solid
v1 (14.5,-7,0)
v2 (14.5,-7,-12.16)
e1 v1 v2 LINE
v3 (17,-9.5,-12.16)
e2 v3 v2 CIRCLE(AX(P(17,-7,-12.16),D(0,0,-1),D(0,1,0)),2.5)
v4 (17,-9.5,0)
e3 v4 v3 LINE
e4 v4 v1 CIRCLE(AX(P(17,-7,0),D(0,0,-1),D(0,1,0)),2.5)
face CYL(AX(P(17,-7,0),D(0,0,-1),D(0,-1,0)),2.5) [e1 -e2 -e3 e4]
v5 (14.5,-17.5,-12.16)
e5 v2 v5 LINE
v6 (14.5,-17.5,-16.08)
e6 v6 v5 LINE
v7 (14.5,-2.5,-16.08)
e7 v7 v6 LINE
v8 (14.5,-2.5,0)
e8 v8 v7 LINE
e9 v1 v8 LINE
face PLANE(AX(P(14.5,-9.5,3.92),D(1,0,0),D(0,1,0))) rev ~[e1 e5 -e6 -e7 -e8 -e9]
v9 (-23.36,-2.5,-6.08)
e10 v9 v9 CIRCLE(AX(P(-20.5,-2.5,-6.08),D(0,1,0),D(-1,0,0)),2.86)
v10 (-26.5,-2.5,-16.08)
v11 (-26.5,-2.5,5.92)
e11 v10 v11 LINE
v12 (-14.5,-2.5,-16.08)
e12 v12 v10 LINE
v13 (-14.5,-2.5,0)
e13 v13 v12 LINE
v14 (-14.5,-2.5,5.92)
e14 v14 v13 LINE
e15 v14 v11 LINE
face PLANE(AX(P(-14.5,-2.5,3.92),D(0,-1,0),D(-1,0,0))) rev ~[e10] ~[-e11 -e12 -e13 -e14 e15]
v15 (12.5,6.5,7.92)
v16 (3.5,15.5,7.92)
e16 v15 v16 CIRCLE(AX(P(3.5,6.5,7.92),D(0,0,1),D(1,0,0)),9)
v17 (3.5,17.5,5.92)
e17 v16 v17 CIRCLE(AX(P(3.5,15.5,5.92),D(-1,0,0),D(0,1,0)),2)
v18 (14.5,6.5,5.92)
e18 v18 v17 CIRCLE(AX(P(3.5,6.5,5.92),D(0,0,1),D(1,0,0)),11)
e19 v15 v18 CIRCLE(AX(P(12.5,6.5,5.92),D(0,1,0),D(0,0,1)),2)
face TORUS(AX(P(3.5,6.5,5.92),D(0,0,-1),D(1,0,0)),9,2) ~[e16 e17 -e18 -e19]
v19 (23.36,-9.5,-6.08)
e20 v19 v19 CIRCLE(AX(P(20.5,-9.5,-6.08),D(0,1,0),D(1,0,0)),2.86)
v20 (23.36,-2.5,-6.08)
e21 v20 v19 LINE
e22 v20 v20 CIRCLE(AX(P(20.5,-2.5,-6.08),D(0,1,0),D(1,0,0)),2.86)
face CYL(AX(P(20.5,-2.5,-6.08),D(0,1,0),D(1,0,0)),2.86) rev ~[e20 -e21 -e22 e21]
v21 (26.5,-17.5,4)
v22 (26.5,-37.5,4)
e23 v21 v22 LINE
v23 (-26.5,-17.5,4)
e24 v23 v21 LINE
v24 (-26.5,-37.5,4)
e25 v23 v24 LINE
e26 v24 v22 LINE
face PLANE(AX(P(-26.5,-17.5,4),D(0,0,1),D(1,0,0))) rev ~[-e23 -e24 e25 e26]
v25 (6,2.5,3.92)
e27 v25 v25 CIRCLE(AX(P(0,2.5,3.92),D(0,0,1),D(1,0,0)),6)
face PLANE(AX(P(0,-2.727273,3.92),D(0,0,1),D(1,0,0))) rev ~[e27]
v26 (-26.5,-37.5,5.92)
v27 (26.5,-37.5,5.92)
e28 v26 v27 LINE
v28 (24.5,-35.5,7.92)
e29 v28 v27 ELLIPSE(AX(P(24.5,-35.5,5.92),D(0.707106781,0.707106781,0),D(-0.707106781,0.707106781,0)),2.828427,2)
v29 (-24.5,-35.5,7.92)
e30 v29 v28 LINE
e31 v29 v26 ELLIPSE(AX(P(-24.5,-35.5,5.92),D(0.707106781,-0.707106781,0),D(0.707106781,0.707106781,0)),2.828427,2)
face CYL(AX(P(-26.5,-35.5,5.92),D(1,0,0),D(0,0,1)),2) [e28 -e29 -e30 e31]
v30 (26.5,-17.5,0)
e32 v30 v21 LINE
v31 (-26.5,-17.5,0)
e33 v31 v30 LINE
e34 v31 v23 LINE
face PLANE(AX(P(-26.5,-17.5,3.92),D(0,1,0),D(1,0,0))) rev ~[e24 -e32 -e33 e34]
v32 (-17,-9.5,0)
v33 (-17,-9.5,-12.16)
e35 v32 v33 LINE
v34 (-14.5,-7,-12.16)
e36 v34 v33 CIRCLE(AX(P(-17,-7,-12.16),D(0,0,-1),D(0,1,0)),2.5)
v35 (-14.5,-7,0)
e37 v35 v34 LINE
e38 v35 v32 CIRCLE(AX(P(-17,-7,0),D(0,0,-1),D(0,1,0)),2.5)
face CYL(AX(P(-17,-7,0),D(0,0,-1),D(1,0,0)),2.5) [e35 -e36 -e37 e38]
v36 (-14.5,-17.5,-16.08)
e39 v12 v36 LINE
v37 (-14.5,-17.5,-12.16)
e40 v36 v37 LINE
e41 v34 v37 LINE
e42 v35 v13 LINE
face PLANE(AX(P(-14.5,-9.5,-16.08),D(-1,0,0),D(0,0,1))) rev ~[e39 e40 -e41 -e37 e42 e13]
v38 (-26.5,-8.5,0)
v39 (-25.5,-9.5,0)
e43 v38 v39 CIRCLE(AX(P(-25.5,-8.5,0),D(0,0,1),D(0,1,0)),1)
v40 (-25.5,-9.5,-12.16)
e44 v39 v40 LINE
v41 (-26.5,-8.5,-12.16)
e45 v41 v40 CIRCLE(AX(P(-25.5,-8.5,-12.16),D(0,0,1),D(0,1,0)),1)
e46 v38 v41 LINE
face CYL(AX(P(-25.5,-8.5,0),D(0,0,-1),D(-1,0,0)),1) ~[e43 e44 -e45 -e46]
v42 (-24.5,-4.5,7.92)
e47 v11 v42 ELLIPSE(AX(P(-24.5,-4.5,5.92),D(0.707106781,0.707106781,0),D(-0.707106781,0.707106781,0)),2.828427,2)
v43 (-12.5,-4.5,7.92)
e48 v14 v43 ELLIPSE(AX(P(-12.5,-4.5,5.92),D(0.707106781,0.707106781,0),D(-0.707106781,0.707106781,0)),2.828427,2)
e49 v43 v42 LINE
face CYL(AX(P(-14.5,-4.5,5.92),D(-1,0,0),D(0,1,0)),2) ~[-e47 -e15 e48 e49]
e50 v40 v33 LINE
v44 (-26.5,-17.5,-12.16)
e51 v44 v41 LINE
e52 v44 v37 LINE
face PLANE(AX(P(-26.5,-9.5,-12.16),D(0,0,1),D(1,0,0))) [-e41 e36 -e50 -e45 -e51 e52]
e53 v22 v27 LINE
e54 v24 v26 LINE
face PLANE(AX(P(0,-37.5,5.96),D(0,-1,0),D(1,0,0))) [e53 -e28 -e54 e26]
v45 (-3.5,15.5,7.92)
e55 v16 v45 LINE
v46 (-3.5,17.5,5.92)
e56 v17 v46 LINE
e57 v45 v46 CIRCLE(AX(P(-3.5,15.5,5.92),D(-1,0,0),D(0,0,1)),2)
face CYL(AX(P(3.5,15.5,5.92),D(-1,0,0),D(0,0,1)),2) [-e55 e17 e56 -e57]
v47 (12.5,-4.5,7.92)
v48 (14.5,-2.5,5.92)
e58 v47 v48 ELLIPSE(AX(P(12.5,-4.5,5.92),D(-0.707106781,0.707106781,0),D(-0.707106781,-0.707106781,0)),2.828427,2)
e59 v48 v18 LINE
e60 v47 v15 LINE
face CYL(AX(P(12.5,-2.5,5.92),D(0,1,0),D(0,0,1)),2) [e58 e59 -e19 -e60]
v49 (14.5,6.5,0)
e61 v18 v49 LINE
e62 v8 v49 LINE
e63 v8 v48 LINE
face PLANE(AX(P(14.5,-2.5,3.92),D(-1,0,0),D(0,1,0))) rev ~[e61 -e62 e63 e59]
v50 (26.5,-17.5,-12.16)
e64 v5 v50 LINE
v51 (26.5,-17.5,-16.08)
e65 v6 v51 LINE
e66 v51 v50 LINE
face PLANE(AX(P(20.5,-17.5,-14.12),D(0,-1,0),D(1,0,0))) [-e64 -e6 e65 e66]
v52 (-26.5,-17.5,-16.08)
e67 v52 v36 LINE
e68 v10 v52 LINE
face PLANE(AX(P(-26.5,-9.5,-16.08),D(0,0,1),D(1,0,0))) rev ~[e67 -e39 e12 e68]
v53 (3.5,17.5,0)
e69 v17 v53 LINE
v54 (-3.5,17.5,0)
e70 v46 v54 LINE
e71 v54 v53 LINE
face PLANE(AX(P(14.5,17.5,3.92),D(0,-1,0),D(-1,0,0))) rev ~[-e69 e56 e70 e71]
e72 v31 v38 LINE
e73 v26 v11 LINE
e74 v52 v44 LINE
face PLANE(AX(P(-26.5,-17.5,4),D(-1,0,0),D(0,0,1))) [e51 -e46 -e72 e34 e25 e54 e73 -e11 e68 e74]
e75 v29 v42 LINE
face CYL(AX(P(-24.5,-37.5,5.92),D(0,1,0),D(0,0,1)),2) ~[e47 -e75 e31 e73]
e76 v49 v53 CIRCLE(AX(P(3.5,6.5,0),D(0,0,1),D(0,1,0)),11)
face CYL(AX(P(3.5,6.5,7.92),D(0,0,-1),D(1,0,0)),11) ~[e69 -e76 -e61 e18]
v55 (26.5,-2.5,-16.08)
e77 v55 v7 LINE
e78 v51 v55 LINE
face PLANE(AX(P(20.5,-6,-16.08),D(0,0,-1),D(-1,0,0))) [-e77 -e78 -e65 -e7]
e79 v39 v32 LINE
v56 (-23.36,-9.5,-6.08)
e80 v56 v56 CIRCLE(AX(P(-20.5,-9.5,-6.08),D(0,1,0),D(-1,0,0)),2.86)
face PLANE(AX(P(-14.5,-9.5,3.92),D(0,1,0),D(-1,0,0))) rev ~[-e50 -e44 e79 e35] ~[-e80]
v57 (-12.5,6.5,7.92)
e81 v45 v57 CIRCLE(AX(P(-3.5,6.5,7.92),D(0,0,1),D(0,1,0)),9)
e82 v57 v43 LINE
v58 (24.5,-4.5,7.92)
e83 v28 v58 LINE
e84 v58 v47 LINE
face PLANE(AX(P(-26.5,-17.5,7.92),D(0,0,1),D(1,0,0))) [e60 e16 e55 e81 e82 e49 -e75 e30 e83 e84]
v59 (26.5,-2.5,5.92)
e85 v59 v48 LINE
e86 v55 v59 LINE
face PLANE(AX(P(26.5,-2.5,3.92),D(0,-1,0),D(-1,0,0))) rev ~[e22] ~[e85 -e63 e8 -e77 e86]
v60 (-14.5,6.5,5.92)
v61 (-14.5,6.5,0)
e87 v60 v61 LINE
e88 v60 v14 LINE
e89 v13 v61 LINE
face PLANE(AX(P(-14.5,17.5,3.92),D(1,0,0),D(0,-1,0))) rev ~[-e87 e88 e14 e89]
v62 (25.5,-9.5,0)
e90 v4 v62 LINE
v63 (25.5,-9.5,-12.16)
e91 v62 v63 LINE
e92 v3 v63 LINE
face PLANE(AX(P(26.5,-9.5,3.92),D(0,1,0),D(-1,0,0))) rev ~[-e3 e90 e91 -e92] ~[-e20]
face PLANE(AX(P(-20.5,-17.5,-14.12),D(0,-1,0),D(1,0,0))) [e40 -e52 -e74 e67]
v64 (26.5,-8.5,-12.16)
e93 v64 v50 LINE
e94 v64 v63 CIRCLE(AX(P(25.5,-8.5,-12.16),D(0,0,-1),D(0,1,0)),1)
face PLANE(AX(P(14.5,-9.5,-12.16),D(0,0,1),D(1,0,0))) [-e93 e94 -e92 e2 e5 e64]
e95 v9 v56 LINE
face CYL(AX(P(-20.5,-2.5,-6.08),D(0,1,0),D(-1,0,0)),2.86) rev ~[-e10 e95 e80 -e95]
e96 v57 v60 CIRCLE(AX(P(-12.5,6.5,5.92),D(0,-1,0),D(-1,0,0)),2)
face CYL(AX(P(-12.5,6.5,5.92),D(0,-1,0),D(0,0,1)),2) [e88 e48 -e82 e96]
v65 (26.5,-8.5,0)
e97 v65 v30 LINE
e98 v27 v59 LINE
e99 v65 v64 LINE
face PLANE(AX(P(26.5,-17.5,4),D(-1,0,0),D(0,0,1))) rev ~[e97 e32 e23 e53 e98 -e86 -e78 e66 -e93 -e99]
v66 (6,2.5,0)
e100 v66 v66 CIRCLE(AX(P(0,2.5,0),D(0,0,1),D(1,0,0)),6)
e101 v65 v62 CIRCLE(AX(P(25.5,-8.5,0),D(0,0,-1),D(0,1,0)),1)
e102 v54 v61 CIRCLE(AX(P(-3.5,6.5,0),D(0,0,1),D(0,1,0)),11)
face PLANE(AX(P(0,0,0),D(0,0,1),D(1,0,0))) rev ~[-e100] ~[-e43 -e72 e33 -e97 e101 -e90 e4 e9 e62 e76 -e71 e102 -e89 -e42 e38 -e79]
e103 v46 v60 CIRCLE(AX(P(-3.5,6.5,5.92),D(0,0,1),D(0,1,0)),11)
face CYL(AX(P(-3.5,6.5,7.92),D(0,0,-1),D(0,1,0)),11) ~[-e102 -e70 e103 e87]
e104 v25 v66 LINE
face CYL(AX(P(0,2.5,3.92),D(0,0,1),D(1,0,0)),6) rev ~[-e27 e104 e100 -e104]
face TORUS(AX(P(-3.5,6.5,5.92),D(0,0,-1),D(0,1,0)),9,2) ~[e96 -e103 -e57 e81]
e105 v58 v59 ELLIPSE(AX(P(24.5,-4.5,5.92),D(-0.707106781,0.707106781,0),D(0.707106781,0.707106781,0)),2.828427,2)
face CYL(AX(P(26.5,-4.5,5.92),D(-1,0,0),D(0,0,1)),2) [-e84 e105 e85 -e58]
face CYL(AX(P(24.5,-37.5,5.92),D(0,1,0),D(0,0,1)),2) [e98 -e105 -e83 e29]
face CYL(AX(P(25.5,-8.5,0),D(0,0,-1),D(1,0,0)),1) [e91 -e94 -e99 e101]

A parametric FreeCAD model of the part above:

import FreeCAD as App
import Part
import Sketcher
from FreeCAD import Vector


def edges_at(feature, points):
    """Names of the edges that pass closest to the given points."""
    edges = feature.Shape.Edges
    near = lambda p: min(range(len(edges)), key=lambda i: edges[i].distToShape(Part.Vertex(*p))[0])
    return sorted({f"Edge{near(p) + 1}" for p in points})


def add_polygon(sketch, points):
    """Adds a closed chain of lines whose ends are joined by coincident constraints."""
    first, n = sketch.GeometryCount, len(points)
    for a, b in zip(points, points[1:] + points[:1]):
        sketch.addGeometry(Part.LineSegment(App.Vector(*a, 0), App.Vector(*b, 0)), False)
    for i in range(n):
        sketch.addConstraint(Sketcher.Constraint("Coincident", first + i, 2, first + (i + 1) % n, 1))

doc = App.newDocument("Part")
params = doc.addObject("Spreadsheet::Sheet", "Params")
for row, (alias, value) in enumerate([
    ("sketch1_width", "53 mm"),
    ("sketch1_height", "35 mm"),
    ("pad1_length", "3.92 mm"),
    ("sketch2_width", "12 mm"),
    ("sketch2_height", "27 mm"),
    ("pocket1_length", "4 mm"),
    ("sketch3_width", "12 mm"),
    ("sketch3_height", "7 mm"),
    ("pad2_length", "16.08 mm"),
    ("pad2_length2", "3.92 mm"),
    ("sketch4_width", "12 mm"),
    ("sketch4_height", "3.92 mm"),
    ("pad3_length", "8 mm"),
    ("sketch5_diameter", "5.72 mm"),
    ("sketch6_diameter", "12 mm"),
    ("pocket3_length", "4 mm"),
    ("sketch7_width", "12 mm"),
    ("sketch7_width2", "53 mm"),
    ("sketch7_height", "15 mm"),
    ("sketch7_height2", "20 mm"),
    ("pad4_length", "4 mm"),
    ("sketch8_width", "53 mm"),
    ("sketch8_height", "3.92 mm"),
    ("pad5_length", "20 mm"),
    ("fillet_radius", "2.5 mm"),
    ("fillet2_radius", "11 mm"),
    ("fillet3_radius", "1 mm"),
    ("fillet4_radius", "2 mm"),
], start=1):
    params.set(f"A{row}", alias)
    params.set(f"B{row}", "=" + value)
    params.setAlias(f"B{row}", alias)

body = doc.addObject("PartDesign::Body", "Body")

# Sketch on XY plane
sketch1 = doc.addObject("Sketcher::SketchObject", "Sketch")
body.addObject(sketch1)
sketch1.AttachmentSupport = (doc.XY_Plane, [""])
sketch1.MapMode = "FlatFace"
add_polygon(sketch1, [(-26, 18), (-26, -18), (26, -18), (26, 18)])  # lines 0-3
sketch1.addConstraint([
    Sketcher.Constraint("Vertical", 0),
    Sketcher.Constraint("Horizontal", 1),
    Sketcher.Constraint("Vertical", 2),
    Sketcher.Constraint("Horizontal", 3),
    Sketcher.Constraint("Symmetric", 0, 2, 2, 2, -1, 1),
    Sketcher.Constraint("DistanceX", 1, 1, 1, 2, 53.0),
    Sketcher.Constraint("DistanceY", 0, 2, 0, 1, 35.0),
])
sketch1.setExpression("Constraints[9]", "Params.sketch1_width")
sketch1.setExpression("Constraints[10]", "Params.sketch1_height")
pad1 = doc.addObject("PartDesign::Pad", "Pad")
body.addObject(pad1)
pad1.Profile = sketch1
pad1.setExpression("Length", "Params.pad1_length")

# Sketch on XY plane
sketch2 = doc.addObject("Sketcher::SketchObject", "Sketch001")
body.addObject(sketch2)
sketch2.AttachmentSupport = (doc.XY_Plane, [""])
sketch2.MapMode = "FlatFace"
sketch2.AttachmentOffset = App.Placement(Vector(0, 0, 3.92), App.Rotation())
add_polygon(sketch2, [(-26, 18), (-26, -10), (-14, -10), (-14, 18)])  # lines 0-3
add_polygon(sketch2, [(14, 18), (14, -10), (26, -10), (26, 18)])  # lines 4-7
sketch2.addConstraint([
    Sketcher.Constraint("Vertical", 0),
    Sketcher.Constraint("Horizontal", 1),
    Sketcher.Constraint("Vertical", 2),
    Sketcher.Constraint("Horizontal", 3),
    Sketcher.Constraint("Vertical", 4),
    Sketcher.Constraint("Horizontal", 5),
    Sketcher.Constraint("Vertical", 6),
    Sketcher.Constraint("Horizontal", 7),
    Sketcher.Constraint("Symmetric", 1, 2, 4, 2, -2),
    Sketcher.Constraint("Symmetric", 3, 2, 6, 2, -2),
    Sketcher.Constraint("DistanceX", 1, 1, 1, 2, 12.0),
    Sketcher.Constraint("DistanceY", 0, 2, 0, 1, 27.0),
    Sketcher.Constraint("DistanceX", 1, 2, 4, 2, 29.0),
    Sketcher.Constraint("DistanceY", 0, 2, -1, 1, 9.5),
])
sketch2.setExpression("Constraints[18]", "Params.sketch2_width")
sketch2.setExpression("Constraints[19]", "Params.sketch2_height")
pocket1 = doc.addObject("PartDesign::Pocket", "Pocket")
body.addObject(pocket1)
pocket1.Profile = sketch2
pocket1.setExpression("Length", "Params.pocket1_length")

# Sketch on XY plane
sketch3 = doc.addObject("Sketcher::SketchObject", "Sketch002")
body.addObject(sketch3)
sketch3.AttachmentSupport = (doc.XY_Plane, [""])
sketch3.MapMode = "FlatFace"
add_polygon(sketch3, [(26, -2), (26, -10), (14, -10), (14, -2)])  # lines 0-3
add_polygon(sketch3, [(-14, -2), (-14, -10), (-26, -10), (-26, -2)])  # lines 4-7
sketch3.addConstraint([
    Sketcher.Constraint("Vertical", 0),
    Sketcher.Constraint("Horizontal", 1),
    Sketcher.Constraint("Vertical", 2),
    Sketcher.Constraint("Horizontal", 3),
    Sketcher.Constraint("Vertical", 4),
    Sketcher.Constraint("Horizontal", 5),
    Sketcher.Constraint("Vertical", 6),
    Sketcher.Constraint("Horizontal", 7),
    Sketcher.Constraint("Symmetric", 1, 2, 4, 2, -2),
    Sketcher.Constraint("Symmetric", 3, 2, 6, 2, -2),
    Sketcher.Constraint("DistanceX", 1, 2, 1, 1, 12.0),
    Sketcher.Constraint("DistanceY", 0, 2, 0, 1, 7.0),
    Sketcher.Constraint("DistanceX", 4, 2, 1, 2, 29.0),
    Sketcher.Constraint("DistanceY", 0, 2, -1, 1, 9.5),
])
sketch3.setExpression("Constraints[18]", "Params.sketch3_width")
sketch3.setExpression("Constraints[19]", "Params.sketch3_height")
pad2 = doc.addObject("PartDesign::Pad", "Pad001")
body.addObject(pad2)
pad2.Profile = sketch3
pad2.Type = "TwoLengths"
pad2.setExpression("Length", "Params.pad2_length")
pad2.setExpression("Length2", "Params.pad2_length2")
pad2.Reversed = True

# Sketch on XZ plane
sketch4 = doc.addObject("Sketcher::SketchObject", "Sketch003")
body.addObject(sketch4)
sketch4.AttachmentSupport = (doc.XZ_Plane, [""])
sketch4.MapMode = "FlatFace"
sketch4.AttachmentOffset = App.Placement(Vector(0, 0, 9.5), App.Rotation())
add_polygon(sketch4, [(-26.5, -12.2), (-26.5, -16.1), (-14.5, -16.1), (-14.5, -12.2)])  # lines 0-3
add_polygon(sketch4, [(14.5, -12.2), (14.5, -16.1), (26.5, -16.1), (26.5, -12.2)])  # lines 4-7
sketch4.addConstraint([
    Sketcher.Constraint("Vertical", 0),
    Sketcher.Constraint("Horizontal", 1),
    Sketcher.Constraint("Vertical", 2),
    Sketcher.Constraint("Horizontal", 3),
    Sketcher.Constraint("Vertical", 4),
    Sketcher.Constraint("Horizontal", 5),
    Sketcher.Constraint("Vertical", 6),
    Sketcher.Constraint("Horizontal", 7),
    Sketcher.Constraint("Symmetric", 1, 2, 4, 2, -2),
    Sketcher.Constraint("Symmetric", 3, 2, 6, 2, -2),
    Sketcher.Constraint("DistanceX", 1, 1, 1, 2, 12.0),
    Sketcher.Constraint("DistanceX", 1, 2, 4, 2, 29.0),
    Sketcher.Constraint("DistanceY", 0, 2, 0, 1, 3.92),
    Sketcher.Constraint("DistanceY", 0, 2, -1, 1, 16.08),
])
sketch4.setExpression("Constraints[18]", "Params.sketch4_width")
sketch4.setExpression("Constraints[20]", "Params.sketch4_height")
pad3 = doc.addObject("PartDesign::Pad", "Pad002")
body.addObject(pad3)
pad3.Profile = sketch4
pad3.setExpression("Length", "Params.pad3_length")

# Sketch on XZ plane
sketch5 = doc.addObject("Sketcher::SketchObject", "Sketch004")
body.addObject(sketch5)
sketch5.AttachmentSupport = (doc.XZ_Plane, [""])
sketch5.MapMode = "FlatFace"
sketch5.AttachmentOffset = App.Placement(Vector(0, 0, 2.5), App.Rotation())
sketch5.addGeometry([
    Part.Circle(Vector(-20.5, -6.1, 0), Vector(0, 0, 1), 2.9),
    Part.Circle(Vector(20.5, -6.1, 0), Vector(0, 0, 1), 2.9),
], False)
sketch5.addConstraint([
    Sketcher.Constraint("Equal", 0, 1),
    Sketcher.Constraint("Symmetric", 0, 3, 1, 3, -2),
    Sketcher.Constraint("Diameter", 0, 5.72),
    Sketcher.Constraint("DistanceX", 0, 3, 1, 3, 41.0),
    Sketcher.Constraint("DistanceY", 0, 3, -1, 1, 6.08),
])
sketch5.setExpression("Constraints[2]", "Params.sketch5_diameter")
pocket2 = doc.addObject("PartDesign::Pocket", "Pocket001")
body.addObject(pocket2)
pocket2.Profile = sketch5
pocket2.Type = "ThroughAll"
pocket2.Reversed = True

# Sketch on XY plane
sketch6 = doc.addObject("Sketcher::SketchObject", "Sketch005")
body.addObject(sketch6)
sketch6.AttachmentSupport = (doc.XY_Plane, [""])
sketch6.MapMode = "FlatFace"
sketch6.AttachmentOffset = App.Placement(Vector(0, 0, 3.92), App.Rotation())
sketch6.addGeometry(Part.Circle(Vector(0, 2, 0), Vector(0, 0, 1), 6), False)
sketch6.addConstraint([
    Sketcher.Constraint("PointOnObject", 0, 3, -2),
    Sketcher.Constraint("Diameter", 0, 12.0),
    Sketcher.Constraint("DistanceY", -1, 1, 0, 3, 2.5),
])
sketch6.setExpression("Constraints[1]", "Params.sketch6_diameter")
pocket3 = doc.addObject("PartDesign::Pocket", "Pocket002")
body.addObject(pocket3)
pocket3.Profile = sketch6
pocket3.setExpression("Length", "Params.pocket3_length")

# Sketch on XY plane
sketch7 = doc.addObject("Sketcher::SketchObject", "Sketch006")
body.addObject(sketch7)
sketch7.AttachmentSupport = (doc.XY_Plane, [""])
sketch7.MapMode = "FlatFace"
sketch7.AttachmentOffset = App.Placement(Vector(0, 0, 3.92), App.Rotation())
add_polygon(sketch7, [(-14, -2), (-26, -2), (-26, -18), (26, -18), (26, -2), (14, -2), (14, 18), (-14, 18)])  # lines 0-7
sketch7.addConstraint([
    Sketcher.Constraint("Horizontal", 0),
    Sketcher.Constraint("Vertical", 1),
    Sketcher.Constraint("Horizontal", 2),
    Sketcher.Constraint("Vertical", 3),
    Sketcher.Constraint("Horizontal", 4),
    Sketcher.Constraint("Vertical", 5),
    Sketcher.Constraint("Horizontal", 6),
    Sketcher.Constraint("Vertical", 7),
    Sketcher.Constraint("Symmetric", 0, 2, 3, 2, -2),
    Sketcher.Constraint("Equal", 0, 4),
    Sketcher.Constraint("DistanceX", 0, 2, 0, 1, 12.0),
    Sketcher.Constraint("DistanceX", 2, 1, 2, 2, 53.0),
    Sketcher.Constraint("DistanceY", 1, 2, 1, 1, 15.0),
    Sketcher.Constraint("DistanceY", 5, 1, 5, 2, 20.0),
    Sketcher.Constraint("DistanceY", 0, 2, -1, 1, 2.5),
])
sketch7.setExpression("Constraints[18]", "Params.sketch7_width")
sketch7.setExpression("Constraints[19]", "Params.sketch7_width2")
sketch7.setExpression("Constraints[20]", "Params.sketch7_height")
sketch7.setExpression("Constraints[21]", "Params.sketch7_height2")
pad4 = doc.addObject("PartDesign::Pad", "Pad003")
body.addObject(pad4)
pad4.Profile = sketch7
pad4.setExpression("Length", "Params.pad4_length")

# Sketch on XZ plane
sketch8 = doc.addObject("Sketcher::SketchObject", "Sketch007")
body.addObject(sketch8)
sketch8.AttachmentSupport = (doc.XZ_Plane, [""])
sketch8.MapMode = "FlatFace"
sketch8.AttachmentOffset = App.Placement(Vector(0, 0, 17.5), App.Rotation())
add_polygon(sketch8, [(-26.5, 7.9), (-26.5, 4), (26.5, 4), (26.5, 7.9)])  # lines 0-3
sketch8.addConstraint([
    Sketcher.Constraint("Vertical", 0),
    Sketcher.Constraint("Horizontal", 1),
    Sketcher.Constraint("Vertical", 2),
    Sketcher.Constraint("Horizontal", 3),
    Sketcher.Constraint("DistanceX", 1, 1, 1, 2, 53.0),
    Sketcher.Constraint("DistanceY", -1, 1, 0, 2, 4.0),
    Sketcher.Constraint("DistanceY", 0, 2, 0, 1, 3.92),
    Sketcher.Constraint("DistanceX", 0, 2, -1, 1, 26.5),
])
sketch8.setExpression("Constraints[8]", "Params.sketch8_width")
sketch8.setExpression("Constraints[10]", "Params.sketch8_height")
pad5 = doc.addObject("PartDesign::Pad", "Pad004")
body.addObject(pad5)
pad5.Profile = sketch8
pad5.setExpression("Length", "Params.pad5_length")
doc.recompute()

fillet = doc.addObject("PartDesign::Fillet", "Fillet")
body.addObject(fillet)
fillet.Base = (pad5, edges_at(pad5, [(14.5, -9.5, -6.08), (-14.5, -9.5, -6.08)]))
fillet.setExpression("Radius", "Params.fillet_radius")
doc.recompute()

fillet2 = doc.addObject("PartDesign::Fillet", "Fillet001")
body.addObject(fillet2)
fillet2.Base = (fillet, edges_at(fillet, [(-14.5, 17.5, 3.96), (14.5, 17.5, 3.96)]))
fillet2.setExpression("Radius", "Params.fillet2_radius")
doc.recompute()

fillet3 = doc.addObject("PartDesign::Fillet", "Fillet002")
body.addObject(fillet3)
fillet3.Base = (fillet2, edges_at(fillet2, [(26.5, -9.5, -6.08), (-26.5, -9.5, -6.08)]))
fillet3.setExpression("Radius", "Params.fillet3_radius")
doc.recompute()

fillet4 = doc.addObject("PartDesign::Fillet", "Fillet003")
body.addObject(fillet4)
fillet4.Base = (fillet3, edges_at(fillet3, [
    (-20.5, -2.5, 7.92),
    (-26.5, -20, 7.92),
    (26.5, -20, 7.92),
    (20.5, -2.5, 7.92),
    (14.5, 2, 7.92),
    (0, -37.5, 7.92),
    (-14.5, 2, 7.92),
    (0, 17.5, 7.92),
    (-11.278, 14.278, 7.92),
    (11.278, 14.278, 7.92),
]))
fillet4.setExpression("Radius", "Params.fillet4_radius")

doc.recompute()
